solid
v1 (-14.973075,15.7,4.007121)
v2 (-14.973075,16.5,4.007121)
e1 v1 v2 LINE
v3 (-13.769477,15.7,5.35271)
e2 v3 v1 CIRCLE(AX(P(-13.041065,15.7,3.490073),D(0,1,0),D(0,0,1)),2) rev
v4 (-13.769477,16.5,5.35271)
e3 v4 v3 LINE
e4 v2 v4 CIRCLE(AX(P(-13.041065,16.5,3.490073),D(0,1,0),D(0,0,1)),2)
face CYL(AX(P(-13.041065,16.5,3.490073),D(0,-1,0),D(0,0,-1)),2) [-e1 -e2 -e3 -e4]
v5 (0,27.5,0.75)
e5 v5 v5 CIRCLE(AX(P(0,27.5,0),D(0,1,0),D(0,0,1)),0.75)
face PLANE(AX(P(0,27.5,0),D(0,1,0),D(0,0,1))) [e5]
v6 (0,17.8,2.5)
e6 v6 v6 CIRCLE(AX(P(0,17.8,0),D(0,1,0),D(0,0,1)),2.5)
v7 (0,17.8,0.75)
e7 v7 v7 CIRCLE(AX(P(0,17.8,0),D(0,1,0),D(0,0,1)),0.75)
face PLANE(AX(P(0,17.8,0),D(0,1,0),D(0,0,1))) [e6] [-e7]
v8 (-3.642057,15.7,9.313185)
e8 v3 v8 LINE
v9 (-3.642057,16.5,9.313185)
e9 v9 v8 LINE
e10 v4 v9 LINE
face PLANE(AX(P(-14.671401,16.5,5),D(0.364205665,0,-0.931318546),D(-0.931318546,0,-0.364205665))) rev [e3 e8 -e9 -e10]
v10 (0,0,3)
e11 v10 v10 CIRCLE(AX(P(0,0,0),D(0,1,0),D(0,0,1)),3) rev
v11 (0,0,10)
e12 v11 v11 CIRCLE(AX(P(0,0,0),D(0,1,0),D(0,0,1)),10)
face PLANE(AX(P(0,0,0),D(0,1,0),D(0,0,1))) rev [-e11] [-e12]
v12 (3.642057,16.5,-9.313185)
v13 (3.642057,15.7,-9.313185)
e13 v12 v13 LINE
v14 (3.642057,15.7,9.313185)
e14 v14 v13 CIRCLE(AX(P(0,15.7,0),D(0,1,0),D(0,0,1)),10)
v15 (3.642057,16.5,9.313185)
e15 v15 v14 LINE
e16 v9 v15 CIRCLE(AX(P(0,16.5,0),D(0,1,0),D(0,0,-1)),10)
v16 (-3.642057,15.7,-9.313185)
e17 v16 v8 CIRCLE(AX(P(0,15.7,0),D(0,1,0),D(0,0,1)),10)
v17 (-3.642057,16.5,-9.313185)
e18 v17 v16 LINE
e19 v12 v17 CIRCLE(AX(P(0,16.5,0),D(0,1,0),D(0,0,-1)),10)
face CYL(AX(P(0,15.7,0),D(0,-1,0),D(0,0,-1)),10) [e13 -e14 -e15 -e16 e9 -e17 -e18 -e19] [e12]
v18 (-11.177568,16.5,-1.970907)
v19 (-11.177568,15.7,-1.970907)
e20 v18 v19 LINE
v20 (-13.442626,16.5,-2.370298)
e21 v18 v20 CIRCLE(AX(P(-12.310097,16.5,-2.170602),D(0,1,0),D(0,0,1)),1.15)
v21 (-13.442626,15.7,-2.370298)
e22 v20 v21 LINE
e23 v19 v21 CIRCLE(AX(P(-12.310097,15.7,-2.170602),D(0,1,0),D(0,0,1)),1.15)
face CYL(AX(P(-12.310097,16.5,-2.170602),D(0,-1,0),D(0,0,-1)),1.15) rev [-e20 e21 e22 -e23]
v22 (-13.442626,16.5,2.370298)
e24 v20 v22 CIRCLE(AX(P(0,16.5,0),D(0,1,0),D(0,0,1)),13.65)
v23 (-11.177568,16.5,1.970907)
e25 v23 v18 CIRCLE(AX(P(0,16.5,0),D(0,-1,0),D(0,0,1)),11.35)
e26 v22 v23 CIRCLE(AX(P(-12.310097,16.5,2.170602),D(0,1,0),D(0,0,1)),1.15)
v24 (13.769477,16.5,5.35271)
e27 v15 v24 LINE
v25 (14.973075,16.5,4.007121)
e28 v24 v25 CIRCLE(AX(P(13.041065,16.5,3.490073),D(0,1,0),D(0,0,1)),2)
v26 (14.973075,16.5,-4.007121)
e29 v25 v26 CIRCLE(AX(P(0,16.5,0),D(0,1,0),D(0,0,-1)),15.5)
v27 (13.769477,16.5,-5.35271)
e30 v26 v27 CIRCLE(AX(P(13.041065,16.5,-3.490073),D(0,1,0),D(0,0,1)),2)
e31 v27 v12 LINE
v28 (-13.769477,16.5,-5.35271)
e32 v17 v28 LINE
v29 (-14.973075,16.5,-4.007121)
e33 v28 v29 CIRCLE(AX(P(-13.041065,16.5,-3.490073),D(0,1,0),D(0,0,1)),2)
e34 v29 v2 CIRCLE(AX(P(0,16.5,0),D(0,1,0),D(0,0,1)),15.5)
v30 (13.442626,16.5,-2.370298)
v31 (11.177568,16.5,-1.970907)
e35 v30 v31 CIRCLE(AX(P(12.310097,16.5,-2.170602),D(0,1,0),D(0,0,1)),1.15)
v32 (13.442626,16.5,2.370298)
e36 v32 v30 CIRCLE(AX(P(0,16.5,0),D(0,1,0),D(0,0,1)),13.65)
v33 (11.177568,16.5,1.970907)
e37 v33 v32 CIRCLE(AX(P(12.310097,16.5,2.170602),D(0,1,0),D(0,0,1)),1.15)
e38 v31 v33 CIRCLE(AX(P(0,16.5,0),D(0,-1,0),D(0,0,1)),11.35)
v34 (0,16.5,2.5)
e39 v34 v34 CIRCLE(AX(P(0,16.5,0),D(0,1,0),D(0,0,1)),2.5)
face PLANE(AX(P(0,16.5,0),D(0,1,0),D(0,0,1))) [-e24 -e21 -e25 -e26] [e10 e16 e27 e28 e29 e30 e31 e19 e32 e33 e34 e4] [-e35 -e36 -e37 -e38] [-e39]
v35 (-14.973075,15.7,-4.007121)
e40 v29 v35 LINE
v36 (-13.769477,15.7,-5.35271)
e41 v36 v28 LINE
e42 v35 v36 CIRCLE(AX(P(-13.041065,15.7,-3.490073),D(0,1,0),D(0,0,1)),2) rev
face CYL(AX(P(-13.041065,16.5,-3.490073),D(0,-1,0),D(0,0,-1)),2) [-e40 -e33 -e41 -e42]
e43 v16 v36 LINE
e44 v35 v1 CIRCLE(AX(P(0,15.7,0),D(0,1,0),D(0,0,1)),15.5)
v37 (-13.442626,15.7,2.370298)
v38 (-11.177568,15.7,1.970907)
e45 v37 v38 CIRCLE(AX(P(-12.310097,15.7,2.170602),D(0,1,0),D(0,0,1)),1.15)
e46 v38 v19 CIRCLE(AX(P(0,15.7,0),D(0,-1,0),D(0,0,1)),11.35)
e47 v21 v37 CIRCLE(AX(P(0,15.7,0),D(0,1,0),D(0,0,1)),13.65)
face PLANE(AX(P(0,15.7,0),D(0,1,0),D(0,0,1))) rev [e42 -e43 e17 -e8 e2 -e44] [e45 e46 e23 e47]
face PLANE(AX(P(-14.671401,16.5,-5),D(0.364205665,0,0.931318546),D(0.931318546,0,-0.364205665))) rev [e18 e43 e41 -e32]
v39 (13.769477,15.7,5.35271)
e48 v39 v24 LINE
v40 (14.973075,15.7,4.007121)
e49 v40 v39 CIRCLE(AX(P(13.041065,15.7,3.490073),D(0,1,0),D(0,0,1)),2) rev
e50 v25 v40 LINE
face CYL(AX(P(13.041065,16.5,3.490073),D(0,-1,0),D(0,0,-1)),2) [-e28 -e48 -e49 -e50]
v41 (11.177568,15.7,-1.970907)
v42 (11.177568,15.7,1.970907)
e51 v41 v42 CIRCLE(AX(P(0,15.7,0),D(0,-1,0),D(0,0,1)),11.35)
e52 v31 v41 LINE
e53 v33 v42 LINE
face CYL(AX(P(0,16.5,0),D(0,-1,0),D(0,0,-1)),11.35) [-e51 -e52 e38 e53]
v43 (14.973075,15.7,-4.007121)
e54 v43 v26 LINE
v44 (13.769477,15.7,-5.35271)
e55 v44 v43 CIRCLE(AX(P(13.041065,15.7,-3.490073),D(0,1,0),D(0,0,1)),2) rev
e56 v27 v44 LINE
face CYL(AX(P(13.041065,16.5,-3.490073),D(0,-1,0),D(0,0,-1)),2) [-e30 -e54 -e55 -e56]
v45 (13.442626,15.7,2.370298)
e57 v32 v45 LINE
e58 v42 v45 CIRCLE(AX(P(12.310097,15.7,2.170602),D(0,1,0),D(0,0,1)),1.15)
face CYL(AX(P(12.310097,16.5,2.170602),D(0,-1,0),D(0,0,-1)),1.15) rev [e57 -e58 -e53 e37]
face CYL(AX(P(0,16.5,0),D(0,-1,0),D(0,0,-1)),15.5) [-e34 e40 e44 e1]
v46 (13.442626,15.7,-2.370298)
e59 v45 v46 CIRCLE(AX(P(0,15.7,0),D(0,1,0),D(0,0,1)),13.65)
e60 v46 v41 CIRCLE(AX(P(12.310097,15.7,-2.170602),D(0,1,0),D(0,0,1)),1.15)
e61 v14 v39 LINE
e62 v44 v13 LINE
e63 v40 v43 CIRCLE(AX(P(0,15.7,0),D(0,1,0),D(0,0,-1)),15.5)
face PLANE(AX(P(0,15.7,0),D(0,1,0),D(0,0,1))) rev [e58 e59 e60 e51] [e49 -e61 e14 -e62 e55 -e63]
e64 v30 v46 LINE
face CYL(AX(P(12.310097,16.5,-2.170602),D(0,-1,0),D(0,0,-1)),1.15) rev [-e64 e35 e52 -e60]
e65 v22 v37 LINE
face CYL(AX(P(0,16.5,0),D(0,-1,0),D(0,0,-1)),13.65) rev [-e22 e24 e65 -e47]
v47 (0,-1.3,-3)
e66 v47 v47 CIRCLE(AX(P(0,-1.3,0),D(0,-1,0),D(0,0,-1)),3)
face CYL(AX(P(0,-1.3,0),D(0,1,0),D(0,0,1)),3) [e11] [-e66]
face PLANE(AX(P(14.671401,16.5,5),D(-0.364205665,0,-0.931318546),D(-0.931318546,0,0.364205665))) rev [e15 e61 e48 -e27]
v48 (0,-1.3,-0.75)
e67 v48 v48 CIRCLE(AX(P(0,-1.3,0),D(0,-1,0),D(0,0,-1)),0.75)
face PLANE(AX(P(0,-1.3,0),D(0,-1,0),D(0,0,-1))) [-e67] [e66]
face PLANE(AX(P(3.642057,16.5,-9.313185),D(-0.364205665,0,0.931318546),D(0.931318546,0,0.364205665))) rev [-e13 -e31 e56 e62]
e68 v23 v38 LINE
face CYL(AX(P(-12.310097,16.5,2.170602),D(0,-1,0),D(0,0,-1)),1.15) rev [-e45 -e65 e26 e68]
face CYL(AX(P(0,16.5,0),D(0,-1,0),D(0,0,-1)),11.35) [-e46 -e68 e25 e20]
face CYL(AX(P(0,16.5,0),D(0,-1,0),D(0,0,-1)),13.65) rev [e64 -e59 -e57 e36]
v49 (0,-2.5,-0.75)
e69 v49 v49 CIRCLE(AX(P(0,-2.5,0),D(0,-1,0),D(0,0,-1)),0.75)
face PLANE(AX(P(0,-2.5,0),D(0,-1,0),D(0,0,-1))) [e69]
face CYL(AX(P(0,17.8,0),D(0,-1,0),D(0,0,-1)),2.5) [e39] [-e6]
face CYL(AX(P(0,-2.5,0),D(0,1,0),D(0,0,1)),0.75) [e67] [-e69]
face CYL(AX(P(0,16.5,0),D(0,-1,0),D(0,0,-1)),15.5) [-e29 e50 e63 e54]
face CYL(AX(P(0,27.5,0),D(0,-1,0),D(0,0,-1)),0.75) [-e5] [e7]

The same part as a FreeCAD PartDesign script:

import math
import FreeCAD as App
import Part
import Sketcher
from FreeCAD import Vector


def edges_at(feature, points):
    """Names of the edges that pass closest to the given points."""
    edges = feature.Shape.Edges
    near = lambda p: min(range(len(edges)), key=lambda i: edges[i].distToShape(Part.Vertex(*p))[0])
    return sorted({f"Edge{near(p) + 1}" for p in points})

doc = App.newDocument("Part")
body = doc.addObject("PartDesign::Body", "Body")

sketch1 = body.newObject("Sketcher::SketchObject", "Sketch")
sketch1.AttachmentSupport = (doc.getObject("XZ_Plane"), [""])
sketch1.MapMode = "FlatFace"
sketch1.addGeometry(Part.Circle(Vector(0, 0, 0), Vector(0, 0, 1), 10), False)
sketch1.addConstraint([
    Sketcher.Constraint("Coincident", 0, 3, -1, 1),
    Sketcher.Constraint("Diameter", 0, 20.0),
])
pad1 = body.newObject("PartDesign::Pad", "Pad")
pad1.Profile = sketch1
pad1.Length = 15.7
pad1.Reversed = True

sketch2 = body.newObject("Sketcher::SketchObject", "Sketch001")
sketch2.AttachmentSupport = (doc.getObject("XZ_Plane"), [""])
sketch2.MapMode = "FlatFace"
sketch2.addGeometry(Part.Circle(Vector(0, 0, 0), Vector(0, 0, 1), 3), False)
sketch2.addConstraint([
    Sketcher.Constraint("Coincident", 0, 3, -1, 1),
    Sketcher.Constraint("Diameter", 0, 6.0),
])
pad2 = body.newObject("PartDesign::Pad", "Pad001")
pad2.Profile = sketch2
pad2.Length = 1.3

sketch3 = body.newObject("Sketcher::SketchObject", "Sketch002")
sketch3.AttachmentSupport = (doc.getObject("XZ_Plane"), [""])
sketch3.MapMode = "FlatFace"
sketch3.AttachmentOffset = App.Placement(Vector(0, 0, -15.7), App.Rotation())
sketch3.addGeometry([
    Part.LineSegment(Vector(-3.6, -9.3, 0), Vector(-14.7, -5, 0)),
    Part.ArcOfCircle(Part.Circle(Vector(0, 0, 0), Vector(0, 0, 1), 15.5), math.radians(161), math.radians(199)),
    Part.LineSegment(Vector(-14.7, 5, 0), Vector(-3.6, 9.3, 0)),
    Part.ArcOfCircle(Part.Circle(Vector(0, 0, 0), Vector(0, 0, 1), 10), math.radians(69), math.radians(111)),
    Part.LineSegment(Vector(3.6, 9.3, 0), Vector(14.7, 5, 0)),
    Part.ArcOfCircle(Part.Circle(Vector(0, 0, 0), Vector(0, 0, 1), 15.5), math.radians(-19), math.radians(19)),
    Part.LineSegment(Vector(14.7, -5, 0), Vector(3.6, -9.3, 0)),
    Part.ArcOfCircle(Part.Circle(Vector(0, 0, 0), Vector(0, 0, 1), 10), math.radians(-111), math.radians(-69)),
    Part.ArcOfCircle(Part.Circle(Vector(12.3, 2.2, 0), Vector(0, 0, 1), 1.1), math.radians(10), math.radians(190)),
    Part.ArcOfCircle(Part.Circle(Vector(0, 0, 0), Vector(0, 0, 1), 11.4), math.radians(-10), math.radians(10)),
    Part.ArcOfCircle(Part.Circle(Vector(12.3, -2.2, 0), Vector(0, 0, 1), 1.1), math.radians(170), math.radians(350)),
    Part.ArcOfCircle(Part.Circle(Vector(0, 0, 0), Vector(0, 0, 1), 13.7), math.radians(-10), math.radians(10)),
    Part.ArcOfCircle(Part.Circle(Vector(-12.3, -2.2, 0), Vector(0, 0, 1), 1.1), math.radians(-170), math.radians(10)),
    Part.ArcOfCircle(Part.Circle(Vector(0, 0, 0), Vector(0, 0, 1), 11.4), math.radians(170), math.radians(190)),
    Part.ArcOfCircle(Part.Circle(Vector(-12.3, 2.2, 0), Vector(0, 0, 1), 1.1), math.radians(-10), math.radians(170)),
    Part.ArcOfCircle(Part.Circle(Vector(0, 0, 0), Vector(0, 0, 1), 13.7), math.radians(170), math.radians(190)),
], False)
sketch3.addConstraint([
    Sketcher.Constraint("Coincident", 0, 2, 1, 2),
    Sketcher.Constraint("Coincident", 1, 1, 2, 1),
    Sketcher.Constraint("Tangent", 2, 2, 3, 2),
    Sketcher.Constraint("Tangent", 3, 1, 4, 1),
    Sketcher.Constraint("Coincident", 4, 2, 5, 2),
    Sketcher.Constraint("Coincident", 5, 1, 6, 1),
    Sketcher.Constraint("Tangent", 6, 2, 7, 2),
    Sketcher.Constraint("Tangent", 7, 1, 0, 1),
    Sketcher.Constraint("Tangent", 8, 2, 9, 2),
    Sketcher.Constraint("Tangent", 9, 1, 10, 1),
    Sketcher.Constraint("Tangent", 10, 2, 11, 1),
    Sketcher.Constraint("Tangent", 11, 2, 8, 1),
    Sketcher.Constraint("Tangent", 12, 2, 13, 2),
    Sketcher.Constraint("Tangent", 13, 1, 14, 1),
    Sketcher.Constraint("Tangent", 14, 2, 15, 1),
    Sketcher.Constraint("Tangent", 15, 2, 12, 1),
    Sketcher.Constraint("Coincident", 1, 3, -1, 1),
    Sketcher.Constraint("Coincident", 3, 3, -1, 1),
    Sketcher.Constraint("Coincident", 5, 3, -1, 1),
    Sketcher.Constraint("Coincident", 7, 3, -1, 1),
    Sketcher.Constraint("Coincident", 9, 3, -1, 1),
    Sketcher.Constraint("Coincident", 11, 3, -1, 1),
    Sketcher.Constraint("Coincident", 13, 3, -1, 1),
    Sketcher.Constraint("Coincident", 15, 3, -1, 1),
    Sketcher.Constraint("Equal", 1, 5),
    Sketcher.Constraint("Equal", 3, 7),
    Sketcher.Constraint("Equal", 10, 12),
    Sketcher.Constraint("Equal", 9, 13),
    Sketcher.Constraint("Parallel", 0, 4),
    Sketcher.Constraint("Parallel", 2, 6),
    Sketcher.Constraint("Horizontal", 10, 3, 12, 3),
    Sketcher.Constraint("Horizontal", 8, 3, 14, 3),
    Sketcher.Constraint("Horizontal", 2, 2, 3, 1),
    Sketcher.Constraint("Vertical", 8, 3, 10, 3),
    Sketcher.Constraint("Radius", 3, 10.0),
    Sketcher.Constraint("Radius", 1, 15.5),
    Sketcher.Constraint("Radius", 8, 1.15),
    Sketcher.Constraint("Radius", 9, 11.35),
    Sketcher.Constraint("DistanceY", 0, 2, -1, 1, 5.0),
    Sketcher.Constraint("DistanceY", 10, 2, 8, 3, 4.5409),
])
pad3 = body.newObject("PartDesign::Pad", "Pad002")
pad3.Profile = sketch3
pad3.Length = 0.8
pad3.Reversed = True
doc.recompute()

fillet = body.newObject("PartDesign::Fillet", "Fillet")
fillet.Base = (pad3, edges_at(pad3, [
    (-14.671, 16.1, -5),
    (14.671, 16.1, -5),
    (14.671, 16.1, 5),
    (-14.671, 16.1, 5),
]))
fillet.Radius = 2

sketch4 = body.newObject("Sketcher::SketchObject", "Sketch003")
sketch4.AttachmentSupport = (doc.getObject("XZ_Plane"), [""])
sketch4.MapMode = "FlatFace"
sketch4.AttachmentOffset = App.Placement(Vector(0, 0, -16.5), App.Rotation())
sketch4.addGeometry(Part.Circle(Vector(0, 0, 0), Vector(0, 0, 1), 2.5), False)
sketch4.addConstraint([
    Sketcher.Constraint("Coincident", 0, 3, -1, 1),
    Sketcher.Constraint("Diameter", 0, 5.0),
])
pad4 = body.newObject("PartDesign::Pad", "Pad003")
pad4.Profile = sketch4
pad4.Length = 1.3
pad4.Reversed = True

sketch5 = body.newObject("Sketcher::SketchObject", "Sketch004")
sketch5.AttachmentSupport = (doc.getObject("XZ_Plane"), [""])
sketch5.MapMode = "FlatFace"
sketch5.AttachmentOffset = App.Placement(Vector(0, 0, -17.8), App.Rotation())
sketch5.addGeometry(Part.Circle(Vector(0, 0, 0), Vector(0, 0, 1), 0.8), False)
sketch5.addConstraint([
    Sketcher.Constraint("Coincident", 0, 3, -1, 1),
    Sketcher.Constraint("Diameter", 0, 1.5),
])
pad5 = body.newObject("PartDesign::Pad", "Pad004")
pad5.Profile = sketch5
pad5.Length = 9.7
pad5.Reversed = True

sketch6 = body.newObject("Sketcher::SketchObject", "Sketch005")
sketch6.AttachmentSupport = (doc.getObject("XZ_Plane"), [""])
sketch6.MapMode = "FlatFace"
sketch6.AttachmentOffset = App.Placement(Vector(0, 0, 2.5), App.Rotation())
sketch6.addGeometry(Part.Circle(Vector(0, 0, 0), Vector(0, 0, 1), 0.8), False)
sketch6.addConstraint([
    Sketcher.Constraint("Coincident", 0, 3, -1, 1),
    Sketcher.Constraint("Diameter", 0, 1.5),
])
pad6 = body.newObject("PartDesign::Pad", "Pad005")
pad6.Profile = sketch6
pad6.Length = 1.2
pad6.Reversed = True

doc.recompute()
